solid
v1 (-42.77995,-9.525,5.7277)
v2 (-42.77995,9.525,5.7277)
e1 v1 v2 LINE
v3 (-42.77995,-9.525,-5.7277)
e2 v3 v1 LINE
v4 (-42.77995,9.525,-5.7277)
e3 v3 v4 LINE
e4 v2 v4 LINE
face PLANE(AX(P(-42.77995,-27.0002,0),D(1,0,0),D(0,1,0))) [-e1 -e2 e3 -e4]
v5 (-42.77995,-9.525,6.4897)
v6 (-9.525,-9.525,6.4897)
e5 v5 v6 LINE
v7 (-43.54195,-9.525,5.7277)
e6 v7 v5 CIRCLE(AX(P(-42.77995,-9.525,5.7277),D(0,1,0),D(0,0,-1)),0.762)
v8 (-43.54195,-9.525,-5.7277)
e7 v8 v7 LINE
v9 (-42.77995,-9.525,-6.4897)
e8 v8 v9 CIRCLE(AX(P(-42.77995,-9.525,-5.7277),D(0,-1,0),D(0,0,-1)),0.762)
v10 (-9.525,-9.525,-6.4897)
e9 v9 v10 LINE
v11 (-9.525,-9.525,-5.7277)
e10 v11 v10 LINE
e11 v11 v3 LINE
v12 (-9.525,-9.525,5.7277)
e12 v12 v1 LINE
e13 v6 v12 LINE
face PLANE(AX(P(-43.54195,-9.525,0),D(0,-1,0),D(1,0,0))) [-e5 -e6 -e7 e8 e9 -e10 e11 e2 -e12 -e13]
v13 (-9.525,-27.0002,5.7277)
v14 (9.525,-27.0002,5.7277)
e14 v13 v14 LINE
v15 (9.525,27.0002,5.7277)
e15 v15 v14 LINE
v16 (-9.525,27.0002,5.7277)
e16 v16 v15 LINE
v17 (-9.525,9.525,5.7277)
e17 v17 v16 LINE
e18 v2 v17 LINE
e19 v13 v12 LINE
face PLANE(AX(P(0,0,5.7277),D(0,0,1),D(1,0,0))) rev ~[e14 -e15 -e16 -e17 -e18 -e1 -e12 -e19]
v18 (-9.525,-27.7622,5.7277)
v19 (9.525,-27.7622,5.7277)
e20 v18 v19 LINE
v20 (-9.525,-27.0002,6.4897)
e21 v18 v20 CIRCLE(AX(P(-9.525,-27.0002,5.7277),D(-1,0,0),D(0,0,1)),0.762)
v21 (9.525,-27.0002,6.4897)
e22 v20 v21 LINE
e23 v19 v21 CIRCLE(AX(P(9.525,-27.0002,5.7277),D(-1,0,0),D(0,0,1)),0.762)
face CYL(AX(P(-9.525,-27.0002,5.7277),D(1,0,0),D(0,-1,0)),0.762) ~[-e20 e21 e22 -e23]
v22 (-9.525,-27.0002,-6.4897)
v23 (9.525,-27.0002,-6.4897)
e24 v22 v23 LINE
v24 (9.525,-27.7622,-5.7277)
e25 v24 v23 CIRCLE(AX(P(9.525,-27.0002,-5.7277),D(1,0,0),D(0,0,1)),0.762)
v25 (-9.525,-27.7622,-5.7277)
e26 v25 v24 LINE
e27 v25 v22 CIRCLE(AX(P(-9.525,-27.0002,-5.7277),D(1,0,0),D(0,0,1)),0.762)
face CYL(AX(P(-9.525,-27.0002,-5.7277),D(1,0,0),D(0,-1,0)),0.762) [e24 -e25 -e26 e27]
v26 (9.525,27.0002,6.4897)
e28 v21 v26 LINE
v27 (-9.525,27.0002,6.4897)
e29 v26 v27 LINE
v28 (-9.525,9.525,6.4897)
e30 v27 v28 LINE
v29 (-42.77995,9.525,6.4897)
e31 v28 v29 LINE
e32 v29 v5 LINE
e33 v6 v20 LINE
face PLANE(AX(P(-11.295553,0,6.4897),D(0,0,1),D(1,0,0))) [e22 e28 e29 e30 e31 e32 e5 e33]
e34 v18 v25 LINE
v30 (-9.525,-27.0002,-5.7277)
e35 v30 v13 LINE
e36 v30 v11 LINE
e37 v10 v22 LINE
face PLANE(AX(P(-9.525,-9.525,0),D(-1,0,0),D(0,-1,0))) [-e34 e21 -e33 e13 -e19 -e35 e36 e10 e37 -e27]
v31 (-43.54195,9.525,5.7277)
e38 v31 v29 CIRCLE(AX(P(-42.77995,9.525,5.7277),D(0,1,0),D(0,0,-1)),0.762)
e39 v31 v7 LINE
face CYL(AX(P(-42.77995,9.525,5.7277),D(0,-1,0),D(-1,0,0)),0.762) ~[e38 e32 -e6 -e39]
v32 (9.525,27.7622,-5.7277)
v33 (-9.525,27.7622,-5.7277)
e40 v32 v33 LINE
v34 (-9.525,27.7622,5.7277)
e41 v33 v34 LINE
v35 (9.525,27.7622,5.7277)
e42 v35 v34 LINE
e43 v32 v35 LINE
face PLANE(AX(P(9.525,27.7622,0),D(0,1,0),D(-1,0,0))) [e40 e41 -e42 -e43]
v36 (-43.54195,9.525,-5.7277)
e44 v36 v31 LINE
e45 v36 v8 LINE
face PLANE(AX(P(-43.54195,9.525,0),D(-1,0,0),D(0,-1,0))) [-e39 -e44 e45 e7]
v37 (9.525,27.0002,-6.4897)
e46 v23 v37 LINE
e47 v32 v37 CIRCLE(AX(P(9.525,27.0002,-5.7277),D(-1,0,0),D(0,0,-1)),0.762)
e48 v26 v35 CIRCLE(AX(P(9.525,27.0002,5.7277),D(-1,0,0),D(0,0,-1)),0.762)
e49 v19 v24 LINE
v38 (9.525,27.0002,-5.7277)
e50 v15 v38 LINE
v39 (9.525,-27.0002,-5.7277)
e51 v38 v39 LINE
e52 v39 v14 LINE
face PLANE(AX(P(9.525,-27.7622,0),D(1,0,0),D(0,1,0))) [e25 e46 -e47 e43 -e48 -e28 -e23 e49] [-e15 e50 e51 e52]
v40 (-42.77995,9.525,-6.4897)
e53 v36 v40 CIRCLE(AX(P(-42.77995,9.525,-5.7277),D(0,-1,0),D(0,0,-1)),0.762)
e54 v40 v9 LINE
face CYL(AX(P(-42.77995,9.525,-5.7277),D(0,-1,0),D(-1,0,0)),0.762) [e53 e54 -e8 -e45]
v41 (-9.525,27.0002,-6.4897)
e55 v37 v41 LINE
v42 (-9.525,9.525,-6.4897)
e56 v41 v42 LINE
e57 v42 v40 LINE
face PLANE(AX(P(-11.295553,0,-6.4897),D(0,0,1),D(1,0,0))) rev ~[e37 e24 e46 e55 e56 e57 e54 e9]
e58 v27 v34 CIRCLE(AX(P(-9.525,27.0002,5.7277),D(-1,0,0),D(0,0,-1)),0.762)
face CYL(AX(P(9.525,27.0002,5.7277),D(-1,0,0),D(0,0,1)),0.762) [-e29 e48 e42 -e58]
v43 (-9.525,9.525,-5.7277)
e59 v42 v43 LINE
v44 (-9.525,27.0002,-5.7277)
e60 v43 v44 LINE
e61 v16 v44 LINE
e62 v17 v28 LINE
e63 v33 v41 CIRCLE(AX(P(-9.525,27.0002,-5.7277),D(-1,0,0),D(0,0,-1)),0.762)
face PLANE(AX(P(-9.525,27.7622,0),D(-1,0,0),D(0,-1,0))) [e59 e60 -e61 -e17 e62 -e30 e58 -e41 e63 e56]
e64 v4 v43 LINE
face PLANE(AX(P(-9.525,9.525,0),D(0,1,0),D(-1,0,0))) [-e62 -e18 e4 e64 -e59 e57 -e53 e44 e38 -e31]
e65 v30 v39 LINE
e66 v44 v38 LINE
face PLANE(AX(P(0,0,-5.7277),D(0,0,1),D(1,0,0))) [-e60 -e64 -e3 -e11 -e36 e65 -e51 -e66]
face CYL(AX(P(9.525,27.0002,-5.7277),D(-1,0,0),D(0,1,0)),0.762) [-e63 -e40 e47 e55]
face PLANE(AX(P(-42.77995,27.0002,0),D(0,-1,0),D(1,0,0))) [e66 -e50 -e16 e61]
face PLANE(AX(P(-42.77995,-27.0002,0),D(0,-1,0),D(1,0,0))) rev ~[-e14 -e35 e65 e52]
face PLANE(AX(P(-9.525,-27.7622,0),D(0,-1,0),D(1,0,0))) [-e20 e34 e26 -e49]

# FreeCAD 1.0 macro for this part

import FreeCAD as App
import Part
import Sketcher
Q = App.Units.Quantity


def edges_at(feature, points):
    """Names of the edges that pass closest to the given points."""
    edges = feature.Shape.Edges
    near = lambda p: min(range(len(edges)), key=lambda i: edges[i].distToShape(Part.Vertex(*p))[0])
    return sorted({f"Edge{near(p) + 1}" for p in points})


def add_polygon(sketch, points):
    """Adds a closed chain of lines whose ends are joined by coincident constraints."""
    first, n = sketch.GeometryCount, len(points)
    for a, b in zip(points, points[1:] + points[:1]):
        sketch.addGeometry(Part.LineSegment(App.Vector(*a, 0), App.Vector(*b, 0)), False)
    for i in range(n):
        sketch.addConstraint(Sketcher.Constraint("Coincident", first + i, 2, first + (i + 1) % n, 1))

doc = App.newDocument("Part")
body = doc.addObject("PartDesign::Body", "Body")

sketch1 = body.newObject("Sketcher::SketchObject", "Sketch")
sketch1.AttachmentSupport = (doc.getObject("XY_Plane"), [""])
sketch1.MapMode = "FlatFace"
add_polygon(sketch1, [(10, -28), (10, 28), (-10, 28), (-10, 10), (-44, 10), (-44, -10), (-10, -10), (-10, -28)])
sketch1.addConstraint([
    Sketcher.Constraint("Vertical", 0),
    Sketcher.Constraint("Horizontal", 1),
    Sketcher.Constraint("Vertical", 2),
    Sketcher.Constraint("Horizontal", 3),
    Sketcher.Constraint("Vertical", 4),
    Sketcher.Constraint("Horizontal", 5),
    Sketcher.Constraint("Vertical", 6),
    Sketcher.Constraint("Horizontal", 7),
    Sketcher.Constraint("Symmetric", 0, 2, 6, 2, -1, 1),
    Sketcher.Constraint("Symmetric", 2, 2, 5, 2, -1),
    Sketcher.Constraint("Equal", 7, 4),
    Sketcher.Constraint("DistanceX", 1, 2, 1, 1, Q("0.75 in")),
    Sketcher.Constraint("DistanceY", 0, 1, 0, 2, Q("2.186 in")),
    Sketcher.Constraint("DistanceX", 3, 2, 3, 1, 34.01695),
])
pad1 = body.newObject("PartDesign::Pad", "Pad")
pad1.Profile = sketch1
pad1.Type = "TwoLengths"
pad1.Length = Q("0.2555 in")
pad1.Length2 = Q("0.2555 in")

sketch2 = body.newObject("Sketcher::SketchObject", "Sketch001")
sketch2.AttachmentSupport = (doc.getObject("XY_Plane"), [""])
sketch2.MapMode = "FlatFace"
add_polygon(sketch2, [(-43, 27), (-43, -27), (43, -27), (43, 27)])
sketch2.addConstraint([
    Sketcher.Constraint("Vertical", 0),
    Sketcher.Constraint("Horizontal", 1),
    Sketcher.Constraint("Vertical", 2),
    Sketcher.Constraint("Horizontal", 3),
    Sketcher.Constraint("Symmetric", 0, 2, 2, 2, -1, 1),
    Sketcher.Constraint("DistanceY", 0, 2, 0, 1, Q("2.126 in")),
    Sketcher.Constraint("DistanceX", 1, 1, 1, 2, Q("3.3685 in")),
])
pocket1 = body.newObject("PartDesign::Pocket", "Pocket")
pocket1.Profile = sketch2
pocket1.Type = "TwoLengths"
pocket1.Length = Q("0.2255 in")
pocket1.Length2 = Q("0.2255 in")
doc.recompute()

fillet = body.newObject("PartDesign::Fillet", "Fillet")
fillet.Base = (pocket1, edges_at(pocket1, [
    (0, -27.762, 6.49),
    (0, -27.762, -6.49),
    (0, 27.762, 6.49),
    (0, 27.762, -6.49),
    (-43.542, 0, -6.49),
    (-43.542, 0, 6.49),
]))
fillet.Radius = Q("0.03 in")

doc.recompute()
